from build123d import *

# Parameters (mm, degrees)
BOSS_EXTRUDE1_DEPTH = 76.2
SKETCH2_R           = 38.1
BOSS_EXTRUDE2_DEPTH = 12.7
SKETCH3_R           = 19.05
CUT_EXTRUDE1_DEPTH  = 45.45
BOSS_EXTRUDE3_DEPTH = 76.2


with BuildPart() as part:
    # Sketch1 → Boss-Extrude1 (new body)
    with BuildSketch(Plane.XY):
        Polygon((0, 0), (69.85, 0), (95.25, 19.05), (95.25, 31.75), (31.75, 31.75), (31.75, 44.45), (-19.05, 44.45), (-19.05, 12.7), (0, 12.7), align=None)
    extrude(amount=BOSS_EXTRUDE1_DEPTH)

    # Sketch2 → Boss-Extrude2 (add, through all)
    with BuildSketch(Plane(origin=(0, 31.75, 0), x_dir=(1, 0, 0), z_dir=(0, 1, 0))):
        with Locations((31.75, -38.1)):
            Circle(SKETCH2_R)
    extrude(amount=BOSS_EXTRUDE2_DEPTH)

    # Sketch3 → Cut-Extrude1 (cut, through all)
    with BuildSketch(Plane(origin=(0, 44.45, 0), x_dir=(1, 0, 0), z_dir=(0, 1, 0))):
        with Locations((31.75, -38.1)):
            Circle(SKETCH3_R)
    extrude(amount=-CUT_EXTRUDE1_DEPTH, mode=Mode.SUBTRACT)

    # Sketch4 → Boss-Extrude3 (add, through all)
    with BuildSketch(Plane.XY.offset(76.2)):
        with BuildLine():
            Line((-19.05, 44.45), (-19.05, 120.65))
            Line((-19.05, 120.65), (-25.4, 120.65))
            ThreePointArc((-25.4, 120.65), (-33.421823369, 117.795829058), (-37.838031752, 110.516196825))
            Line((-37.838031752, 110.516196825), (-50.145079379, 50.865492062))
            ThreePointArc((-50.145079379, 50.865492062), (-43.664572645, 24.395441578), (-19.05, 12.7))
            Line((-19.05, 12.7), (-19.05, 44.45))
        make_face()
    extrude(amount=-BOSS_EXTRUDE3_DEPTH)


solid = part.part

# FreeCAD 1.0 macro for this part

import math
import FreeCAD as App
import Part
import Sketcher
Q = App.Units.Quantity


def add_polygon(sketch, points):
    """Adds a closed chain of lines whose ends are joined by coincident constraints."""
    first, n = sketch.GeometryCount, len(points)
    for a, b in zip(points, points[1:] + points[:1]):
        sketch.addGeometry(Part.LineSegment(App.Vector(*a, 0), App.Vector(*b, 0)), False)
    for i in range(n):
        sketch.addConstraint(Sketcher.Constraint("Coincident", first + i, 2, first + (i + 1) % n, 1))

doc = App.newDocument("Part")
params = doc.addObject("Spreadsheet::Sheet", "Params")
for row, (alias, value) in enumerate([
    ("sketch1_width", "2 in"),
    ("sketch1_width2", "2.5 in"),
    ("sketch1_height", "0.5 in"),
    ("sketch1_width3", "2.75 in"),
    ("sketch1_height2", "1.25 in"),
    ("pad1_length", "3 in"),
    ("sketch2_diameter", "3 in"),
    ("sketch3_diameter", "1.5 in"),
    ("sketch4_radius", "0.5 in"),
    ("sketch4_radius2", "1.25 in"),
    ("sketch4_width", "0.25 in"),
    ("pad3_length", "3 in"),
], start=1):
    params.set(f"A{row}", alias)
    params.set(f"B{row}", "=" + value)
    params.setAlias(f"B{row}", alias)

body = doc.addObject("PartDesign::Body", "Body")

sketch1 = doc.addObject("Sketcher::SketchObject", "Sketch")
body.addObject(sketch1)
sketch1.AttachmentSupport = (doc.XY_Plane, [""])
sketch1.MapMode = "FlatFace"
add_polygon(sketch1, [(0, 0), (70, 0), (95, 19), (95, 32), (32, 32), (32, 44), (-19, 44), (-19, 13), (0, 13)])
sketch1.addConstraint([
    Sketcher.Constraint("Horizontal", 0),
    Sketcher.Constraint("Vertical", 2),
    Sketcher.Constraint("Horizontal", 3),
    Sketcher.Constraint("Vertical", 4),
    Sketcher.Constraint("Horizontal", 5),
    Sketcher.Constraint("Vertical", 6),
    Sketcher.Constraint("Horizontal", 7),
    Sketcher.Constraint("Vertical", 8),
    Sketcher.Constraint("Coincident", 8, 2, -1, 1),
    Sketcher.Constraint("Equal", 2, 4),
    Sketcher.Constraint("Equal", 4, 8),
    Sketcher.Constraint("DistanceX", 5, 2, 5, 1, Q("2 in")),
    Sketcher.Constraint("DistanceX", 3, 2, 3, 1, Q("2.5 in")),
    Sketcher.Constraint("DistanceY", 2, 1, 2, 2, Q("0.5 in")),
    Sketcher.Constraint("DistanceX", 0, 2, 1, 2, Q("1 in")),
    Sketcher.Constraint("DistanceX", 0, 1, 0, 2, Q("2.75 in")),
    Sketcher.Constraint("DistanceY", 6, 2, 6, 1, Q("1.25 in")),
])
sketch1.setExpression("Constraints[20]", "Params.sketch1_width")
sketch1.setExpression("Constraints[21]", "Params.sketch1_width2")
sketch1.setExpression("Constraints[22]", "Params.sketch1_height")
sketch1.setExpression("Constraints[24]", "Params.sketch1_width3")
sketch1.setExpression("Constraints[25]", "Params.sketch1_height2")
pad1 = doc.addObject("PartDesign::Pad", "Pad")
body.addObject(pad1)
pad1.Profile = sketch1
pad1.setExpression("Length", "Params.pad1_length")

sketch2 = doc.addObject("Sketcher::SketchObject", "Sketch001")
body.addObject(sketch2)
sketch2.AttachmentSupport = (doc.XZ_Plane, [""])
sketch2.MapMode = "FlatFace"
sketch2.AttachmentOffset = App.Placement(App.Vector(0, 0, -1.25 * 25.4), App.Rotation())
sketch2.addGeometry(Part.Circle(App.Vector(32, 38, 0), App.Vector(0, 0, 1), 38), False)
sketch2.addConstraint([
    Sketcher.Constraint("Diameter", 0, Q("3 in")),
    Sketcher.Constraint("DistanceY", -1, 1, 0, 3, Q("1.5 in")),
    Sketcher.Constraint("DistanceX", -1, 1, 0, 3, Q("1.25 in")),
])
sketch2.setExpression("Constraints[0]", "Params.sketch2_diameter")
pad2 = doc.addObject("PartDesign::Pad", "Pad001")
body.addObject(pad2)
pad2.Profile = sketch2
pad2.Type = "UpToLast"
pad2.Reversed = True

sketch3 = doc.addObject("Sketcher::SketchObject", "Sketch002")
body.addObject(sketch3)
sketch3.AttachmentSupport = (doc.XZ_Plane, [""])
sketch3.MapMode = "FlatFace"
sketch3.AttachmentOffset = App.Placement(App.Vector(0, 0, -1.75 * 25.4), App.Rotation())
sketch3.addGeometry(Part.Circle(App.Vector(32, 38, 0), App.Vector(0, 0, 1), 19), False)
sketch3.addConstraint([
    Sketcher.Constraint("Diameter", 0, Q("1.5 in")),
    Sketcher.Constraint("DistanceY", -1, 1, 0, 3, Q("1.5 in")),
    Sketcher.Constraint("DistanceX", -1, 1, 0, 3, Q("1.25 in")),
])
sketch3.setExpression("Constraints[0]", "Params.sketch3_diameter")
pocket1 = doc.addObject("PartDesign::Pocket", "Pocket")
body.addObject(pocket1)
pocket1.Profile = sketch3
pocket1.Type = "ThroughAll"
pocket1.Reversed = True

sketch4 = doc.addObject("Sketcher::SketchObject", "Sketch003")
body.addObject(sketch4)
sketch4.AttachmentSupport = (doc.XY_Plane, [""])
sketch4.MapMode = "FlatFace"
sketch4.AttachmentOffset = App.Placement(App.Vector(0, 0, 3 * 25.4), App.Rotation())
sketch4.addGeometry([
    Part.LineSegment(App.Vector(-19, 121, 0), App.Vector(-25, 121, 0)),
    Part.ArcOfCircle(Part.Circle(App.Vector(-25, 108, 0), App.Vector(0, 0, 1), 13), math.radians(90), math.radians(168)),
    Part.LineSegment(App.Vector(-38, 111, 0), App.Vector(-50, 51, 0)),
    Part.ArcOfCircle(Part.Circle(App.Vector(-19, 44, 0), App.Vector(0, 0, 1), 32), math.radians(168), math.radians(270)),
    Part.LineSegment(App.Vector(-19, 13, 0), App.Vector(-19, 121, 0)),
], False)
sketch4.addConstraint([
    Sketcher.Constraint("Tangent", 0, 2, 1, 1),
    Sketcher.Constraint("Tangent", 1, 2, 2, 1),
    Sketcher.Constraint("Tangent", 2, 2, 3, 1),
    Sketcher.Constraint("Coincident", 3, 2, 4, 1),
    Sketcher.Constraint("Coincident", 4, 2, 0, 1),
    Sketcher.Constraint("Horizontal", 0),
    Sketcher.Constraint("Vertical", 4),
    Sketcher.Constraint("Radius", 1, Q("0.5 in")),
    Sketcher.Constraint("Radius", 3, Q("1.25 in")),
    Sketcher.Constraint("DistanceX", 1, 3, -1, 1, Q("1 in")),
    Sketcher.Constraint("DistanceY", 3, 3, 0, 2, Q("3 in")),
    Sketcher.Constraint("DistanceX", 0, 2, 0, 1, Q("0.25 in")),
    Sketcher.Constraint("DistanceY", -1, 1, 3, 2, Q("0.5 in")),
    Sketcher.Constraint("DistanceX", 3, 3, -1, 1, Q("0.75 in")),
])
sketch4.setExpression("Constraints[7]", "Params.sketch4_radius")
sketch4.setExpression("Constraints[8]", "Params.sketch4_radius2")
sketch4.setExpression("Constraints[11]", "Params.sketch4_width")
pad3 = doc.addObject("PartDesign::Pad", "Pad002")
body.addObject(pad3)
pad3.Profile = sketch4
pad3.setExpression("Length", "Params.pad3_length")
pad3.Reversed = True

doc.recompute()
